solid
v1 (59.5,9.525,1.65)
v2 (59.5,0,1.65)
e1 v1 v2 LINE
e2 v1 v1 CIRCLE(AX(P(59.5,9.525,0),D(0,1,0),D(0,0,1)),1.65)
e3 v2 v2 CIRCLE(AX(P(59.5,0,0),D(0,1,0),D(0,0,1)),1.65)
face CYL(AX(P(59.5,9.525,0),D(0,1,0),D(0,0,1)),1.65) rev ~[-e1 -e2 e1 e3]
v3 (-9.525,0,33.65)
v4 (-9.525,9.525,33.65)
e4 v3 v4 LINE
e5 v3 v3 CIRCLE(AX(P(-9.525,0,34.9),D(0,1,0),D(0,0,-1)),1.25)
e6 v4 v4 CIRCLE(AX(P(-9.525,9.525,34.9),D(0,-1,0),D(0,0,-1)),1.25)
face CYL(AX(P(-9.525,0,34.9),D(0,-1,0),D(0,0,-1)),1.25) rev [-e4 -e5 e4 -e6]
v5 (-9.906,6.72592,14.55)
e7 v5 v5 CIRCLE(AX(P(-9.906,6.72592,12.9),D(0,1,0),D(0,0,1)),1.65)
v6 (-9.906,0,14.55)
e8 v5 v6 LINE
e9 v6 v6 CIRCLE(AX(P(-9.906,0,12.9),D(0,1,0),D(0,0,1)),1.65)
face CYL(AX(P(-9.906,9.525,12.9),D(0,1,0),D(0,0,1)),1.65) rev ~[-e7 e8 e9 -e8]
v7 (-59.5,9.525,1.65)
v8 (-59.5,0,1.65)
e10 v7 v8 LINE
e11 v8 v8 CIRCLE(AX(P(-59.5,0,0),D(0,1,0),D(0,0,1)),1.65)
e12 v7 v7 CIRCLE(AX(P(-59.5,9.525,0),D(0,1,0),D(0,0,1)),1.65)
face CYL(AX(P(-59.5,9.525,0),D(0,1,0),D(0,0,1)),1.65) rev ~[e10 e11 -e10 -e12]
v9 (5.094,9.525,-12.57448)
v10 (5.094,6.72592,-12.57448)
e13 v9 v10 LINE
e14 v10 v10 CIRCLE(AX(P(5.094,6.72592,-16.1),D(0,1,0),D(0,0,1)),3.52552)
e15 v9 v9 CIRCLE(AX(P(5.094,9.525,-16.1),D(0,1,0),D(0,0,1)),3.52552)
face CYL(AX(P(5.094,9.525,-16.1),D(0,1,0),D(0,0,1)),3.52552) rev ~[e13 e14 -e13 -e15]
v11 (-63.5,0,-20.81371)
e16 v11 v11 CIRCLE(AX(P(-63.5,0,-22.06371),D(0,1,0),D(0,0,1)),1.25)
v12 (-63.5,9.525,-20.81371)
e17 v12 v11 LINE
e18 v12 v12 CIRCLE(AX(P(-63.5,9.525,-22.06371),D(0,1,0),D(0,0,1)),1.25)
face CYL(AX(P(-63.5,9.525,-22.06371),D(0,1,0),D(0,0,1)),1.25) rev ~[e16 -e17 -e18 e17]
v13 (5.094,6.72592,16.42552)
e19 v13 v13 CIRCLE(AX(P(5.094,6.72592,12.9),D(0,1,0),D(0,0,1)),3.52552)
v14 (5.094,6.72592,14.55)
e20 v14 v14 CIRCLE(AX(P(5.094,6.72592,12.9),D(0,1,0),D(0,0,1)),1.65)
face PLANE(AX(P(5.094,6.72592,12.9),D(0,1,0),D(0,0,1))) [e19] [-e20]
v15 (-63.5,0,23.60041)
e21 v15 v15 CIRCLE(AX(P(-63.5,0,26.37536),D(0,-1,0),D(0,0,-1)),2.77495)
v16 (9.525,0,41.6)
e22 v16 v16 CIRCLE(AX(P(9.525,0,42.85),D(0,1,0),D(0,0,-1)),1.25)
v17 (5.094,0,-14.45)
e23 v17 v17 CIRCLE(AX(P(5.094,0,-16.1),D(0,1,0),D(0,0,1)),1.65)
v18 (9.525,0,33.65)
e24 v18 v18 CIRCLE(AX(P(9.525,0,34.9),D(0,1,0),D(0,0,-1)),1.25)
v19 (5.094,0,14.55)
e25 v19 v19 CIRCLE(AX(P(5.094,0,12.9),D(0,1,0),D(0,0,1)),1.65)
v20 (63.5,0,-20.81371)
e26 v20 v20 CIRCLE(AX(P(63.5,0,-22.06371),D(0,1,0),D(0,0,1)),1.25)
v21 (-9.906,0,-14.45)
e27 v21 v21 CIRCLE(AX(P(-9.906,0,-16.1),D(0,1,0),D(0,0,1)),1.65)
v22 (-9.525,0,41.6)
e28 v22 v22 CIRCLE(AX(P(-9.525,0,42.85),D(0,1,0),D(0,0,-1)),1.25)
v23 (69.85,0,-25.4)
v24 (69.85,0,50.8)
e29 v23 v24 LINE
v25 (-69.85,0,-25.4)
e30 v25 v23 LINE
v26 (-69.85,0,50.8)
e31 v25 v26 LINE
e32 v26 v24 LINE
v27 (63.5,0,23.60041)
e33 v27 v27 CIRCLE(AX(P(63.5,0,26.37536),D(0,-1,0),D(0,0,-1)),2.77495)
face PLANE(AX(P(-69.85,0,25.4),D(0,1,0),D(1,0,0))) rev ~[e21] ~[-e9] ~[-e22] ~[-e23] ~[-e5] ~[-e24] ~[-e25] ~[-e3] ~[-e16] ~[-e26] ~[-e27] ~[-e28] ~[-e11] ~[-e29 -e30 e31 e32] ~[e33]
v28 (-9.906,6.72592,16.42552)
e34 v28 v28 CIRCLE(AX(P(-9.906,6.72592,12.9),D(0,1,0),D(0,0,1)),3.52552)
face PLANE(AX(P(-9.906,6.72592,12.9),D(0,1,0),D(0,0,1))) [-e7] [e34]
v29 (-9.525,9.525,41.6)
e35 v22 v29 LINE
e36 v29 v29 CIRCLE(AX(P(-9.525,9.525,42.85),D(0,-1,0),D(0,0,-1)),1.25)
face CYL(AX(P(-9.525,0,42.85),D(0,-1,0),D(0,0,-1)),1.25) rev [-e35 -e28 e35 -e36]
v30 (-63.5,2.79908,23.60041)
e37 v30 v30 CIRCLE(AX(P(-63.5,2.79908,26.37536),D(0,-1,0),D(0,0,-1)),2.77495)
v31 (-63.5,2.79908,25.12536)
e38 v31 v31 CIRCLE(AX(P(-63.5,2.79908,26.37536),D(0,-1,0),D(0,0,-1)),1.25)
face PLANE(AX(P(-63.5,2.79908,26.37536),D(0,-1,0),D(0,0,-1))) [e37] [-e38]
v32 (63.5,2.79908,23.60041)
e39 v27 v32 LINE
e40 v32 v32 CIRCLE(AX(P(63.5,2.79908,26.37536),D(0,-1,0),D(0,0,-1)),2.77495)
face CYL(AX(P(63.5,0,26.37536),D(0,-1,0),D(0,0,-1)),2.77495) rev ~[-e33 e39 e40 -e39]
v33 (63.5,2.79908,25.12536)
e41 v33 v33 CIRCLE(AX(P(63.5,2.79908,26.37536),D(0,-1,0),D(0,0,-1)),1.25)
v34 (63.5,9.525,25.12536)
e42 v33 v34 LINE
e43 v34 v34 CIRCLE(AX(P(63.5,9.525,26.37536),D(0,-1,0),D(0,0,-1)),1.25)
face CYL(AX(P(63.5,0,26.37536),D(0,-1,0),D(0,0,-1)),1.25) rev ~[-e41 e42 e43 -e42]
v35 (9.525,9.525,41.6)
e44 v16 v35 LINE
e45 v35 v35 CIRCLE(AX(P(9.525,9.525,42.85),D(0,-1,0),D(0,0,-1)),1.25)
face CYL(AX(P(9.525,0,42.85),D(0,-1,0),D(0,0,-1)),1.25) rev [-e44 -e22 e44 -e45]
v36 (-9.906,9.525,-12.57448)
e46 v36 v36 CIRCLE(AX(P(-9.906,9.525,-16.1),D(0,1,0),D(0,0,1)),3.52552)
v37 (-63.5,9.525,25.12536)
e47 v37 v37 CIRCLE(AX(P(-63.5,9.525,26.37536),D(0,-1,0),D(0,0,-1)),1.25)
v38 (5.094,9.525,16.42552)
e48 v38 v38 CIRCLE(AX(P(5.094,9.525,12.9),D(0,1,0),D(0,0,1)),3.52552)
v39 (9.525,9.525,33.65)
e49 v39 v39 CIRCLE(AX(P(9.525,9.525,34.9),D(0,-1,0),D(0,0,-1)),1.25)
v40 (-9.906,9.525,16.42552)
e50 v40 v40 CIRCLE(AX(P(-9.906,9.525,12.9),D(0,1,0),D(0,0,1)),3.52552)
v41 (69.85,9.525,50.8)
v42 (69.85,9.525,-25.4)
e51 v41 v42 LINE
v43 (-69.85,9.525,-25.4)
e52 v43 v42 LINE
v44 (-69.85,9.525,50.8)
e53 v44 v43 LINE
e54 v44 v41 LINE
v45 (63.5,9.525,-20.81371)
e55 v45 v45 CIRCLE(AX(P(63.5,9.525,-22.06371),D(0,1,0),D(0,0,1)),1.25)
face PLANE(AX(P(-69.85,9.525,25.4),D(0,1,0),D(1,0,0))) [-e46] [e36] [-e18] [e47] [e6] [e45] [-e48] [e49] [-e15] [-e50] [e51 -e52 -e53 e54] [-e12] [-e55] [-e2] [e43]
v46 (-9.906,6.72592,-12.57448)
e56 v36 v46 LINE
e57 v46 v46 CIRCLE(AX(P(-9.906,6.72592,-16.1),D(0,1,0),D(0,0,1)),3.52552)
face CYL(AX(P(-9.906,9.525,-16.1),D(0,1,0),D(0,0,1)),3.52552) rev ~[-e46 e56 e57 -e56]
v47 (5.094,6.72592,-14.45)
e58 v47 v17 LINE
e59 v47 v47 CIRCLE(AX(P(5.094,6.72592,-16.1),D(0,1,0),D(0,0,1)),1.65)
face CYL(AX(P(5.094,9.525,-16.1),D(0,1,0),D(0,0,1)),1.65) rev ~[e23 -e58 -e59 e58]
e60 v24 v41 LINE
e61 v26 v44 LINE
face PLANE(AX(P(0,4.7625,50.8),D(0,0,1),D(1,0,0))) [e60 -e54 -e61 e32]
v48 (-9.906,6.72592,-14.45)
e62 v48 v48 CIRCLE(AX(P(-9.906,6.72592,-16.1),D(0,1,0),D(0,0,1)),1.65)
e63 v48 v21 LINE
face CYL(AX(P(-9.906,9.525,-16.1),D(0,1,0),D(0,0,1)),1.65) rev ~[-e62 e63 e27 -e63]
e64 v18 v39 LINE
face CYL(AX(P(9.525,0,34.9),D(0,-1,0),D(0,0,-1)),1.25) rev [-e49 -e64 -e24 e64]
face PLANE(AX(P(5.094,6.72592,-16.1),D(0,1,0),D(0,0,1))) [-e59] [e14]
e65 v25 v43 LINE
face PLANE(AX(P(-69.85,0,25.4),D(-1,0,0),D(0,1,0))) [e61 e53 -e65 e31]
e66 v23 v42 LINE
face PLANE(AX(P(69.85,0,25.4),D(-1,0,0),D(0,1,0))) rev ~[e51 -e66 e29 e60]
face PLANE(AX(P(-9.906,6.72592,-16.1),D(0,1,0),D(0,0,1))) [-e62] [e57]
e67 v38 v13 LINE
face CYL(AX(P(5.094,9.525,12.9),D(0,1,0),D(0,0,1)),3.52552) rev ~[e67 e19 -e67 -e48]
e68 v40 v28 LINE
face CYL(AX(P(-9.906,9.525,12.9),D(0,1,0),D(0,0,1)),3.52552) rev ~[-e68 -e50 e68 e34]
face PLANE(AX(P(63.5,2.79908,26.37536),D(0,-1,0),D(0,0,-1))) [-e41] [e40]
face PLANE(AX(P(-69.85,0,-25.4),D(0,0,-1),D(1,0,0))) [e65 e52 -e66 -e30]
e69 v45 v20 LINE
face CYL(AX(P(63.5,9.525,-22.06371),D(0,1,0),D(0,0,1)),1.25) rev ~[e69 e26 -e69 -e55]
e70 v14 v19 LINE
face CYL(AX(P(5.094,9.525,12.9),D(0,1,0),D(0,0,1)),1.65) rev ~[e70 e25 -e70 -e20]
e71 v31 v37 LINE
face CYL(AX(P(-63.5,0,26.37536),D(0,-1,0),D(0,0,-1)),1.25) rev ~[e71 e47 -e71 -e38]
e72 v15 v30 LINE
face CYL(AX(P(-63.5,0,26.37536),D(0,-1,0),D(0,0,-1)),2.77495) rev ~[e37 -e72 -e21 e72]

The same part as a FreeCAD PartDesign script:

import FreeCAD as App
import Part
import Sketcher
Q = App.Units.Quantity

doc = App.newDocument("Part")
body = doc.addObject("PartDesign::Body", "Body")

# Sketch on XZ plane
sketch1 = body.newObject("Sketcher::SketchObject", "Sketch")
sketch1.AttachmentSupport = (doc.getObject("XZ_Plane"), [""])
sketch1.MapMode = "FlatFace"
sketch1.addGeometry(Part.LineSegment(App.Vector(-70, -25, 0), App.Vector(-70, 25, 0)), False)
sketch1.addGeometry(Part.LineSegment(App.Vector(-70, 25, 0), App.Vector(70, 25, 0)), False)
sketch1.addGeometry(Part.LineSegment(App.Vector(70, 25, 0), App.Vector(70, -25, 0)), False)
sketch1.addGeometry(Part.LineSegment(App.Vector(70, -25, 0), App.Vector(-70, -25, 0)), False)
sketch1.addConstraint(Sketcher.Constraint("Coincident", 0, 2, 1, 1))
sketch1.addConstraint(Sketcher.Constraint("Coincident", 1, 2, 2, 1))
sketch1.addConstraint(Sketcher.Constraint("Coincident", 2, 2, 3, 1))
sketch1.addConstraint(Sketcher.Constraint("Coincident", 3, 2, 0, 1))
sketch1.addConstraint(Sketcher.Constraint("Vertical", 0))
sketch1.addConstraint(Sketcher.Constraint("Horizontal", 1))
sketch1.addConstraint(Sketcher.Constraint("Vertical", 2))
sketch1.addConstraint(Sketcher.Constraint("Horizontal", 3))
sketch1.addConstraint(Sketcher.Constraint("Symmetric", 0, 2, 2, 2, -1, 1))
sketch1.addConstraint(Sketcher.Constraint("DistanceY", 0, 1, 0, 2, Q("2 in")))
sketch1.addConstraint(Sketcher.Constraint("DistanceX", 1, 1, 1, 2, Q("5.5 in")))
pad1 = body.newObject("PartDesign::Pad", "Pad")
pad1.Profile = sketch1
pad1.Length = Q("0.375 in")
pad1.Reversed = True

# Sketch on XY plane
sketch2 = body.newObject("Sketcher::SketchObject", "Sketch001")
sketch2.AttachmentSupport = (doc.getObject("XY_Plane"), [""])
sketch2.MapMode = "FlatFace"
sketch2.AttachmentOffset = App.Placement(App.Vector(0, 0, 1 * 25.4), App.Rotation())
sketch2.addGeometry(Part.LineSegment(App.Vector(-70, 10, 0), App.Vector(-70, 0, 0)), False)
sketch2.addGeometry(Part.LineSegment(App.Vector(-70, 0, 0), App.Vector(70, 0, 0)), False)
sketch2.addGeometry(Part.LineSegment(App.Vector(70, 0, 0), App.Vector(70, 10, 0)), False)
sketch2.addGeometry(Part.LineSegment(App.Vector(70, 10, 0), App.Vector(-70, 10, 0)), False)
sketch2.addConstraint(Sketcher.Constraint("Coincident", 0, 2, 1, 1))
sketch2.addConstraint(Sketcher.Constraint("Coincident", 1, 2, 2, 1))
sketch2.addConstraint(Sketcher.Constraint("Coincident", 2, 2, 3, 1))
sketch2.addConstraint(Sketcher.Constraint("Coincident", 3, 2, 0, 1))
sketch2.addConstraint(Sketcher.Constraint("Vertical", 0))
sketch2.addConstraint(Sketcher.Constraint("Horizontal", 1))
sketch2.addConstraint(Sketcher.Constraint("Vertical", 2))
sketch2.addConstraint(Sketcher.Constraint("Horizontal", 3))
sketch2.addConstraint(Sketcher.Constraint("Symmetric", 0, 2, 1, 2, -1, 1))
sketch2.addConstraint(Sketcher.Constraint("DistanceX", 1, 1, 1, 2, Q("5.5 in")))
sketch2.addConstraint(Sketcher.Constraint("DistanceY", 0, 2, 0, 1, Q("0.375 in")))
pad2 = body.newObject("PartDesign::Pad", "Pad001")
pad2.Profile = sketch2
pad2.Length = Q("1 in")

# Sketch on XZ plane
sketch3 = body.newObject("Sketcher::SketchObject", "Sketch002")
sketch3.AttachmentSupport = (doc.getObject("XZ_Plane"), [""])
sketch3.MapMode = "FlatFace"
sketch3.addGeometry(Part.Circle(App.Vector(63.5, 26.4, 0), App.Vector(0, 0, 1), 2.8), False)
sketch3.addGeometry(Part.Circle(App.Vector(-63.5, 26.4, 0), App.Vector(0, 0, 1), 2.8), False)
sketch3.addConstraint(Sketcher.Constraint("Equal", 0, 1))
sketch3.addConstraint(Sketcher.Constraint("Symmetric", 0, 3, 1, 3, -2))
sketch3.addConstraint(Sketcher.Constraint("DistanceX", 1, 3, 0, 3, Q("5 in")))
sketch3.addConstraint(Sketcher.Constraint("Diameter", 0, Q("0.2185 in")))
sketch3.addConstraint(Sketcher.Constraint("DistanceY", -1, 1, 0, 3, Q("1.0384 in")))
pocket1 = body.newObject("PartDesign::Pocket", "Pocket")
pocket1.Profile = sketch3
pocket1.Length = Q("0.1102 in")

# Sketch on XZ plane
sketch4 = body.newObject("Sketcher::SketchObject", "Sketch003")
sketch4.AttachmentSupport = (doc.getObject("XZ_Plane"), [""])
sketch4.MapMode = "FlatFace"
sketch4.addGeometry(Part.Circle(App.Vector(63.5, 26.4, 0), App.Vector(0, 0, 1), 1.2), False)
sketch4.addGeometry(Part.Circle(App.Vector(-63.5, 26.4, 0), App.Vector(0, 0, 1), 1.2), False)
sketch4.addConstraint(Sketcher.Constraint("Equal", 0, 1))
sketch4.addConstraint(Sketcher.Constraint("Symmetric", 0, 3, 1, 3, -2))
sketch4.addConstraint(Sketcher.Constraint("DistanceX", 1, 3, 0, 3, Q("5 in")))
sketch4.addConstraint(Sketcher.Constraint("Diameter", 0, 2.5))
sketch4.addConstraint(Sketcher.Constraint("DistanceY", -1, 1, 0, 3, Q("1.0384 in")))
pocket2 = body.newObject("PartDesign::Pocket", "Pocket001")
pocket2.Profile = sketch4
pocket2.Type = "ThroughAll"

# Sketch on XZ plane
sketch5 = body.newObject("Sketcher::SketchObject", "Sketch004")
sketch5.AttachmentSupport = (doc.getObject("XZ_Plane"), [""])
sketch5.MapMode = "FlatFace"
sketch5.AttachmentOffset = App.Placement(App.Vector(0, 0, -0.375 * 25.4), App.Rotation())
sketch5.addGeometry(Part.Circle(App.Vector(-9.9, -16.1, 0), App.Vector(0, 0, 1), 1.6), False)
sketch5.addGeometry(Part.Circle(App.Vector(5.1, -16.1, 0), App.Vector(0, 0, 1), 1.6), False)
sketch5.addGeometry(Part.Circle(App.Vector(-9.9, 12.9, 0), App.Vector(0, 0, 1), 1.6), False)
sketch5.addGeometry(Part.Circle(App.Vector(5.1, 12.9, 0), App.Vector(0, 0, 1), 1.6), False)
sketch5.addGeometry(Part.Circle(App.Vector(-59.5, 0, 0), App.Vector(0, 0, 1), 1.6), False)
sketch5.addGeometry(Part.Circle(App.Vector(59.5, 0, 0), App.Vector(0, 0, 1), 1.6), False)
sketch5.addConstraint(Sketcher.Constraint("Equal", 0, 1))
sketch5.addConstraint(Sketcher.Constraint("Equal", 1, 2))
sketch5.addConstraint(Sketcher.Constraint("Equal", 2, 3))
sketch5.addConstraint(Sketcher.Constraint("Equal", 3, 4))
sketch5.addConstraint(Sketcher.Constraint("Equal", 4, 5))
sketch5.addConstraint(Sketcher.Constraint("Symmetric", 4, 3, 5, 3, -1, 1))
sketch5.addConstraint(Sketcher.Constraint("PointOnObject", 4, 3, -1))
sketch5.addConstraint(Sketcher.Constraint("Horizontal", 0, 3, 1, 3))
sketch5.addConstraint(Sketcher.Constraint("Horizontal", 2, 3, 3, 3))
sketch5.addConstraint(Sketcher.Constraint("Vertical", 0, 3, 2, 3))
sketch5.addConstraint(Sketcher.Constraint("Vertical", 1, 3, 3, 3))
sketch5.addConstraint(Sketcher.Constraint("Diameter", 0, 3.3))
sketch5.addConstraint(Sketcher.Constraint("DistanceX", 0, 3, -1, 1, Q("0.39 in")))
sketch5.addConstraint(Sketcher.Constraint("DistanceY", 0, 3, -1, 1, 16.1))
sketch5.addConstraint(Sketcher.Constraint("DistanceX", -1, 1, 1, 3, 5.094))
sketch5.addConstraint(Sketcher.Constraint("DistanceY", -1, 1, 2, 3, 12.9))
sketch5.addConstraint(Sketcher.Constraint("DistanceX", 4, 3, -1, 1, 59.5))
pocket3 = body.newObject("PartDesign::Pocket", "Pocket002")
pocket3.Profile = sketch5
pocket3.Type = "ThroughAll"
pocket3.Reversed = True

# Sketch on XZ plane
sketch6 = body.newObject("Sketcher::SketchObject", "Sketch005")
sketch6.AttachmentSupport = (doc.getObject("XZ_Plane"), [""])
sketch6.MapMode = "FlatFace"
sketch6.AttachmentOffset = App.Placement(App.Vector(0, 0, -0.375 * 25.4), App.Rotation())
sketch6.addGeometry(Part.Circle(App.Vector(-9.9, -16.1, 0), App.Vector(0, 0, 1), 3.5), False)
sketch6.addGeometry(Part.Circle(App.Vector(5.1, -16.1, 0), App.Vector(0, 0, 1), 3.5), False)
sketch6.addGeometry(Part.Circle(App.Vector(5.1, 12.9, 0), App.Vector(0, 0, 1), 3.5), False)
sketch6.addGeometry(Part.Circle(App.Vector(-9.9, 12.9, 0), App.Vector(0, 0, 1), 3.5), False)
sketch6.addConstraint(Sketcher.Constraint("Equal", 0, 1))
sketch6.addConstraint(Sketcher.Constraint("Equal", 1, 2))
sketch6.addConstraint(Sketcher.Constraint("Equal", 2, 3))
sketch6.addConstraint(Sketcher.Constraint("Horizontal", 0, 3, 1, 3))
sketch6.addConstraint(Sketcher.Constraint("Horizontal", 2, 3, 3, 3))
sketch6.addConstraint(Sketcher.Constraint("Vertical", 1, 3, 2, 3))
sketch6.addConstraint(Sketcher.Constraint("Vertical", 0, 3, 3, 3))
sketch6.addConstraint(Sketcher.Constraint("Diameter", 0, Q("0.2776 in")))
sketch6.addConstraint(Sketcher.Constraint("DistanceX", 0, 3, -1, 1, Q("0.39 in")))
sketch6.addConstraint(Sketcher.Constraint("DistanceY", 0, 3, -1, 1, 16.1))
sketch6.addConstraint(Sketcher.Constraint("DistanceX", -1, 1, 1, 3, 5.094))
sketch6.addConstraint(Sketcher.Constraint("DistanceY", -1, 1, 2, 3, 12.9))
pocket4 = body.newObject("PartDesign::Pocket", "Pocket003")
pocket4.Profile = sketch6
pocket4.Length = Q("0.1102 in")
pocket4.Reversed = True

# Sketch on XZ plane
sketch7 = body.newObject("Sketcher::SketchObject", "Sketch006")
sketch7.AttachmentSupport = (doc.getObject("XZ_Plane"), [""])
sketch7.MapMode = "FlatFace"
sketch7.AttachmentOffset = App.Placement(App.Vector(0, 0, -0.375 * 25.4), App.Rotation())
sketch7.addGeometry(Part.Circle(App.Vector(-63.5, -22.1, 0), App.Vector(0, 0, 1), 1.2), False)
sketch7.addGeometry(Part.Circle(App.Vector(63.5, -22.1, 0), App.Vector(0, 0, 1), 1.2), False)
sketch7.addConstraint(Sketcher.Constraint("Equal", 0, 1))
sketch7.addConstraint(Sketcher.Constraint("Symmetric", 0, 3, 1, 3, -2))
sketch7.addConstraint(Sketcher.Constraint("DistanceX", 0, 3, 1, 3, Q("5 in")))
sketch7.addConstraint(Sketcher.Constraint("Diameter", 0, 2.5))
sketch7.addConstraint(Sketcher.Constraint("DistanceY", 0, 3, -1, 1, 22.06371))
pocket5 = body.newObject("PartDesign::Pocket", "Pocket004")
pocket5.Profile = sketch7
pocket5.Type = "ThroughAll"
pocket5.Reversed = True

# Sketch on XZ plane
sketch8 = body.newObject("Sketcher::SketchObject", "Sketch007")
sketch8.AttachmentSupport = (doc.getObject("XZ_Plane"), [""])
sketch8.MapMode = "FlatFace"
sketch8.addGeometry(Part.Circle(App.Vector(9.5, 34.9, 0), App.Vector(0, 0, 1), 1.2), False)
sketch8.addGeometry(Part.Circle(App.Vector(-9.5, 34.9, 0), App.Vector(0, 0, 1), 1.2), False)
sketch8.addGeometry(Part.Circle(App.Vector(-9.5, 42.9, 0), App.Vector(0, 0, 1), 1.2), False)
sketch8.addGeometry(Part.Circle(App.Vector(9.5, 42.9, 0), App.Vector(0, 0, 1), 1.2), False)
sketch8.addConstraint(Sketcher.Constraint("Equal", 0, 1))
sketch8.addConstraint(Sketcher.Constraint("Equal", 1, 2))
sketch8.addConstraint(Sketcher.Constraint("Equal", 2, 3))
sketch8.addConstraint(Sketcher.Constraint("Symmetric", 0, 3, 1, 3, -2))
sketch8.addConstraint(Sketcher.Constraint("Symmetric", 2, 3, 3, 3, -2))
sketch8.addConstraint(Sketcher.Constraint("Vertical", 1, 3, 2, 3))
sketch8.addConstraint(Sketcher.Constraint("Diameter", 0, 2.5))
sketch8.addConstraint(Sketcher.Constraint("DistanceX", 1, 3, 0, 3, Q("0.75 in")))
sketch8.addConstraint(Sketcher.Constraint("DistanceY", -1, 1, 0, 3, 34.9))
sketch8.addConstraint(Sketcher.Constraint("DistanceY", -1, 1, 2, 3, 42.85))
pocket6 = body.newObject("PartDesign::Pocket", "Pocket005")
pocket6.Profile = sketch8
pocket6.Type = "ThroughAll"

doc.recompute()
